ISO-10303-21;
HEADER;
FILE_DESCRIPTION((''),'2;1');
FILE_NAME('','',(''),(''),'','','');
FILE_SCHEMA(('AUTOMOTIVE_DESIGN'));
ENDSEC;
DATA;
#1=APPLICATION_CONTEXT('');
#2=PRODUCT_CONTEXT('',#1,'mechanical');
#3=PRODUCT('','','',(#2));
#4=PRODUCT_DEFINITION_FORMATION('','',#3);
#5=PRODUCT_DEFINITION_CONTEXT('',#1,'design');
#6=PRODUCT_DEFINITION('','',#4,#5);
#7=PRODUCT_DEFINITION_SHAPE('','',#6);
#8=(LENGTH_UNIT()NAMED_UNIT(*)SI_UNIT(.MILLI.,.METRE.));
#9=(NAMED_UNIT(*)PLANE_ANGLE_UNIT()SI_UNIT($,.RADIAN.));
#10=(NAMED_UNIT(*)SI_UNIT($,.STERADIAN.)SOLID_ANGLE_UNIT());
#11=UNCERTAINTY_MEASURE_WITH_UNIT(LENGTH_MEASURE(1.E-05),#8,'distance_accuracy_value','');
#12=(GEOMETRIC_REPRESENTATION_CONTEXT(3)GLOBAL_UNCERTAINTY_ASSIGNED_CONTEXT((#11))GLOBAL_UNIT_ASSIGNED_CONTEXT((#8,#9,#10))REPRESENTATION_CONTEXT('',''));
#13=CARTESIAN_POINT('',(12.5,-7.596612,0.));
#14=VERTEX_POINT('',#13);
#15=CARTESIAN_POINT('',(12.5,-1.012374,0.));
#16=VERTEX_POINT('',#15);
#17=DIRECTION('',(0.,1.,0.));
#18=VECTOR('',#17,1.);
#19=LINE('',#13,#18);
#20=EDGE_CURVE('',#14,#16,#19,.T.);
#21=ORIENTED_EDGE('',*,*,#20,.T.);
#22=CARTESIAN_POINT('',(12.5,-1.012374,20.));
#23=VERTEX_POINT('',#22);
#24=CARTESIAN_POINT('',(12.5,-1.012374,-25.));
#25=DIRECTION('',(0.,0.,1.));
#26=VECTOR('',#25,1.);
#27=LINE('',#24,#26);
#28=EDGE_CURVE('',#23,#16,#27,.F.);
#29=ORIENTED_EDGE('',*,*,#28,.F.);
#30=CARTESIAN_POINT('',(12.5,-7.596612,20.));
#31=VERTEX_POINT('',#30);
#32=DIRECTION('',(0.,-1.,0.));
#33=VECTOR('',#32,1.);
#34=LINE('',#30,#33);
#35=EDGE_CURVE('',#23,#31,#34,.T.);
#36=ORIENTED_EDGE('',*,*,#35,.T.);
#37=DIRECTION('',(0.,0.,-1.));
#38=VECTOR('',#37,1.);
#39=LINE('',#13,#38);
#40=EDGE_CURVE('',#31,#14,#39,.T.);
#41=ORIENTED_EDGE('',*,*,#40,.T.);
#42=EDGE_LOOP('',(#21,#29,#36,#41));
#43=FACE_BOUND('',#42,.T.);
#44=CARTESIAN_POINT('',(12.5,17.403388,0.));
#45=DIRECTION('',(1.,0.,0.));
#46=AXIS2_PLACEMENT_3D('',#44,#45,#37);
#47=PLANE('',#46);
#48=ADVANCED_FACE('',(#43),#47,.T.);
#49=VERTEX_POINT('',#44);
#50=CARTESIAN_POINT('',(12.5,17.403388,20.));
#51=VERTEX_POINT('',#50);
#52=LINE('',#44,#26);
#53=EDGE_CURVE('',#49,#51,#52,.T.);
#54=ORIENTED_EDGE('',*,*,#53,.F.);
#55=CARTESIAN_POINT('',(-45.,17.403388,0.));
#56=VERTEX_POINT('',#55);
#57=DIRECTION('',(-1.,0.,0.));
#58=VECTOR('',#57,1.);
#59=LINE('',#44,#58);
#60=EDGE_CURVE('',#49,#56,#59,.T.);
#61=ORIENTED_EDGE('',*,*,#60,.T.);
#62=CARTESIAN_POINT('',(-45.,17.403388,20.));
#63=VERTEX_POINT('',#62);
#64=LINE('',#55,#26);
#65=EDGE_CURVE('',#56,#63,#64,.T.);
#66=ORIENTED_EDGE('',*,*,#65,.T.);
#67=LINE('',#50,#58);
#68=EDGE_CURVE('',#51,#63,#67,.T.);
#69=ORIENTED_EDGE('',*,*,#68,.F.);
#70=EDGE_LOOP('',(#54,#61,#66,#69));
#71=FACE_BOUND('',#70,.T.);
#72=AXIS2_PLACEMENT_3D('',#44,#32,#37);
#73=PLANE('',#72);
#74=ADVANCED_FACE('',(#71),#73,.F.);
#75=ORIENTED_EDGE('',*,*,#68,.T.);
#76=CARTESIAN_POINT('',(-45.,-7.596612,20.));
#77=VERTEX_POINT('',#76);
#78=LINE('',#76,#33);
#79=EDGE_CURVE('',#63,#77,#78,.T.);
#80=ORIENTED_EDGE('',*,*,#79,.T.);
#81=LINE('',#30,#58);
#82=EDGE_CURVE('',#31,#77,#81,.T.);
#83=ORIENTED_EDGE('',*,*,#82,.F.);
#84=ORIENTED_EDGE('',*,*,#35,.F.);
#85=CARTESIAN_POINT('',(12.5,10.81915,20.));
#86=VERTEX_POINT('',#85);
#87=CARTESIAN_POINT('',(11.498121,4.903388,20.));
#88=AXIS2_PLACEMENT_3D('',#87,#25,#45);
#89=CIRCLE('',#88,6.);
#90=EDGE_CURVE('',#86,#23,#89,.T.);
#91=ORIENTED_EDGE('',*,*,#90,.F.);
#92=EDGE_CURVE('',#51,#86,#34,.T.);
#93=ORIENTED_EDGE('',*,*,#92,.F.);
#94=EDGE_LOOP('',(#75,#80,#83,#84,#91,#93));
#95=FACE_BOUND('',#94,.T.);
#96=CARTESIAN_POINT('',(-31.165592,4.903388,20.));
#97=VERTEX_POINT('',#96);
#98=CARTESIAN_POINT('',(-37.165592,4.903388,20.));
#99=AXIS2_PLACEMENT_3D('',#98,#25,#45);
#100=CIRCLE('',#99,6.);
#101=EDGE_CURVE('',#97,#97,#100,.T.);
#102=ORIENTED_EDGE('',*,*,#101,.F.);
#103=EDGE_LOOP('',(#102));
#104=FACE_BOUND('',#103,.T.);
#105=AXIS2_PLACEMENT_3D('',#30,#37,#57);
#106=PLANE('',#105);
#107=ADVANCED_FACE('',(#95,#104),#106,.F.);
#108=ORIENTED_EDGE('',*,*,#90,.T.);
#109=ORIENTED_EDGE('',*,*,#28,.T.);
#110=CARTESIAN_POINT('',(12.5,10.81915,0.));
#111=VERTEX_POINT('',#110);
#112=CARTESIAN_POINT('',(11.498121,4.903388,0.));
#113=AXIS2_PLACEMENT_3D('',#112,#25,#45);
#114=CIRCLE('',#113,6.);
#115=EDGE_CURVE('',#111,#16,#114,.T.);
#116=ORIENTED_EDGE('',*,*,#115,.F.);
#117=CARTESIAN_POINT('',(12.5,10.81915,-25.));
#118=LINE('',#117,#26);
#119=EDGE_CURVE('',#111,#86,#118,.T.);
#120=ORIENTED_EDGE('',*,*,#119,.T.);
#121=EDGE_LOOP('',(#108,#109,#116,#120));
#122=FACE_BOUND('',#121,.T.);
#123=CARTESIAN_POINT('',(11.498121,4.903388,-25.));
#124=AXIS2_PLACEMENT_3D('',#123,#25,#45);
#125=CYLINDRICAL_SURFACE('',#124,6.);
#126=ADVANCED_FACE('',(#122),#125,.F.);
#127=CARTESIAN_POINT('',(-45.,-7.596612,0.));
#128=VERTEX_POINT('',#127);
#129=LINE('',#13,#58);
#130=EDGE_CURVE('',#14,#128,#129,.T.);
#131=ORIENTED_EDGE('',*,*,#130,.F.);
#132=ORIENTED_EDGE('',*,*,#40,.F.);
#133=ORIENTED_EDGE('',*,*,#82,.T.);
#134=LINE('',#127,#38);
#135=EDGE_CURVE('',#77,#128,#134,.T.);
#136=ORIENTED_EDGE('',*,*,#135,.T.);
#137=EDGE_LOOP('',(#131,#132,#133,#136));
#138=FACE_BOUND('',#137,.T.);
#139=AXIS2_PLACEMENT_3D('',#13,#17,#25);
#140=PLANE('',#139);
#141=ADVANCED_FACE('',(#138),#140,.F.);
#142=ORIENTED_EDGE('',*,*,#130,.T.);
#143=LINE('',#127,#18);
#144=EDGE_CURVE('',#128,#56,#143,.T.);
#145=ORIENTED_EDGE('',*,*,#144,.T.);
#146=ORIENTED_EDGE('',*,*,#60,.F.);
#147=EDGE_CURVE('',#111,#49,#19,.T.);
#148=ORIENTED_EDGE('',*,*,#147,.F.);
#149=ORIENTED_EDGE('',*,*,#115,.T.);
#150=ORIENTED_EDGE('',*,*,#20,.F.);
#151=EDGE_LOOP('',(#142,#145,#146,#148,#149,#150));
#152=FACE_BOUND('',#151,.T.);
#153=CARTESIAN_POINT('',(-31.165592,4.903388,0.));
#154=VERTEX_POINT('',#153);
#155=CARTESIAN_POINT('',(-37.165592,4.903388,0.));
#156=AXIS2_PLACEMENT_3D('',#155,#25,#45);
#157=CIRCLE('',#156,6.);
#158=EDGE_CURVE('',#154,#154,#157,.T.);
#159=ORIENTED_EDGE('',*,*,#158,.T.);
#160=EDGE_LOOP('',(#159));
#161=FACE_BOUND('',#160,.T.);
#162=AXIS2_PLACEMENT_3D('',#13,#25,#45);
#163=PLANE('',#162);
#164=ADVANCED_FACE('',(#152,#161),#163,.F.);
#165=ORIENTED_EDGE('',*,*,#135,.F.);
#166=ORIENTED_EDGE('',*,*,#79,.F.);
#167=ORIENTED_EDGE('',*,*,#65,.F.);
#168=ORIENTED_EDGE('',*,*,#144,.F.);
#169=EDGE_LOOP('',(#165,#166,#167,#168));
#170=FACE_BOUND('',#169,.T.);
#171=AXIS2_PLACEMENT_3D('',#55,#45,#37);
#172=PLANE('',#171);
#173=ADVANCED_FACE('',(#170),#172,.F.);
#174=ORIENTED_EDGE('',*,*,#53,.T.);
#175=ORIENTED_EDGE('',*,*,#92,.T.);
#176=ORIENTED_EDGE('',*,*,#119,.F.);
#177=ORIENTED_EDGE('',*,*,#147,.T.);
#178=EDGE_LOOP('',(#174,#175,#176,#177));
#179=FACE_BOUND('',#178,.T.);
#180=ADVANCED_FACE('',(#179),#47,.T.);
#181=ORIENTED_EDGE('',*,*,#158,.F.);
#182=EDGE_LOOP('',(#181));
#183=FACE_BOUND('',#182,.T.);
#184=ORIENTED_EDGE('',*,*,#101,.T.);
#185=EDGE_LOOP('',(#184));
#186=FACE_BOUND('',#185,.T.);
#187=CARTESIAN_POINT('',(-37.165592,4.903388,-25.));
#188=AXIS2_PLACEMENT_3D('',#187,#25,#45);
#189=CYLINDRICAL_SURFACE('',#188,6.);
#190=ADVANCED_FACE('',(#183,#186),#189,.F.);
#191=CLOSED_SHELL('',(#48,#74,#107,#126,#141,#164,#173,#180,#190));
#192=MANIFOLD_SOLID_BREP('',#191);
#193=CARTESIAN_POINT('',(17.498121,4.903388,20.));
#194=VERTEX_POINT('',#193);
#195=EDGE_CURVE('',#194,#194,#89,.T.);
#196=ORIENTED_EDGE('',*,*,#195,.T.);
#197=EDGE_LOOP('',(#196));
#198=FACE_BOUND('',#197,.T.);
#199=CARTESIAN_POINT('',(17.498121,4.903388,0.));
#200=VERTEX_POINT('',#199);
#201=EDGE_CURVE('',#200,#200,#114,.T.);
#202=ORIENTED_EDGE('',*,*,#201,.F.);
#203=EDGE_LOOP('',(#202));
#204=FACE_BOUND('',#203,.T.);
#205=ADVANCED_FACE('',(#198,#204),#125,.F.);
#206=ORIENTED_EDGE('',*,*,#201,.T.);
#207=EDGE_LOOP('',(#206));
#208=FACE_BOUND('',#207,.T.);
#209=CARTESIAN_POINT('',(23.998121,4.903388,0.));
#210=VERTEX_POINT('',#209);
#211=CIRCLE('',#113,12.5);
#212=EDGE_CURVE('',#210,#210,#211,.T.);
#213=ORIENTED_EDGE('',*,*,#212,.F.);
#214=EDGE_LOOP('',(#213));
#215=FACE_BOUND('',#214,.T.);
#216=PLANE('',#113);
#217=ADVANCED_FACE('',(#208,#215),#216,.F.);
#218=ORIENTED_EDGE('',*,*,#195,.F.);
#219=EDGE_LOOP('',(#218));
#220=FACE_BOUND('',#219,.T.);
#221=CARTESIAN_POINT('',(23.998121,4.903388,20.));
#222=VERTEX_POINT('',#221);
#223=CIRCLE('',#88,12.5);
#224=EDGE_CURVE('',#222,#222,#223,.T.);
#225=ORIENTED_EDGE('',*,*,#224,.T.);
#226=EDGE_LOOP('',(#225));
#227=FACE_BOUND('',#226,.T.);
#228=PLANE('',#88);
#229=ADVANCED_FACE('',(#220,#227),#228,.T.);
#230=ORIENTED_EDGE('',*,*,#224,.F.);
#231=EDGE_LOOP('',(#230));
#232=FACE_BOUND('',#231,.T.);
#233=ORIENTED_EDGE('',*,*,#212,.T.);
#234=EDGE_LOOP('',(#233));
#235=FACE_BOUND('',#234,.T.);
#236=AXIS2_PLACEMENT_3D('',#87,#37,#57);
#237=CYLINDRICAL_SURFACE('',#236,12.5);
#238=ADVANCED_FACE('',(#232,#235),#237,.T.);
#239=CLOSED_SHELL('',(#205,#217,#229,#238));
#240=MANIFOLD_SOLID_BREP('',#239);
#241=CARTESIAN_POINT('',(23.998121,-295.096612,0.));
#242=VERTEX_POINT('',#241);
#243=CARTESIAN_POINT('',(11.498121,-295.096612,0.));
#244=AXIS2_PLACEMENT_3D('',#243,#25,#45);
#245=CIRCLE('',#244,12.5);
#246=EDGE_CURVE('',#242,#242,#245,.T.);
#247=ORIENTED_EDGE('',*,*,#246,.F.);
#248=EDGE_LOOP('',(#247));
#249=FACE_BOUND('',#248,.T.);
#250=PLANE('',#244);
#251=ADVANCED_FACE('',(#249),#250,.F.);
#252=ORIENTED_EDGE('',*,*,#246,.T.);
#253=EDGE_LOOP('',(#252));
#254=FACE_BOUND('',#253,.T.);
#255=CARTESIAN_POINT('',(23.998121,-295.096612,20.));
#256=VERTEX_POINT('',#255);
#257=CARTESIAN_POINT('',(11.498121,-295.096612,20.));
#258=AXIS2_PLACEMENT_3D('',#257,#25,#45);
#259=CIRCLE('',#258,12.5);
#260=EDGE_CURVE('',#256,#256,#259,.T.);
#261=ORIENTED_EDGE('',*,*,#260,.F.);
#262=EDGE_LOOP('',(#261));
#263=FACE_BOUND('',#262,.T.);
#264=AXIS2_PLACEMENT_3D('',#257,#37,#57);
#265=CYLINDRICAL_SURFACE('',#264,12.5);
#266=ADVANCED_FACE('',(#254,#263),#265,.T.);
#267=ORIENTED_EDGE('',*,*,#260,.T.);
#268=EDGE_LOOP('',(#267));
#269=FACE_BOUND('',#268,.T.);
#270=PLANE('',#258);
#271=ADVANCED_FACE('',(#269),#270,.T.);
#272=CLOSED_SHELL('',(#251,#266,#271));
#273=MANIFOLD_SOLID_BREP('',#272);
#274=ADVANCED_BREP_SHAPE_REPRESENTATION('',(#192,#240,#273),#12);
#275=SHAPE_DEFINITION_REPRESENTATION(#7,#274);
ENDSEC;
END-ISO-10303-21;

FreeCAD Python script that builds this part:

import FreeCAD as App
import Part
import Sketcher
Q = App.Units.Quantity

doc = App.newDocument("Part")
body = doc.addObject("PartDesign::Body", "Body")

# Sketch on XY plane
sketch1 = doc.addObject("Sketcher::SketchObject", "Sketch")
body.addObject(sketch1)
sketch1.AttachmentSupport = (doc.XY_Plane, [""])
sketch1.MapMode = "FlatFace"
sketch1.addGeometry(Part.Circle(App.Vector(11, 5, 0), App.Vector(0, 0, 1), 12), False)
sketch1.addConstraint([
    Sketcher.Constraint("Diameter", 0, Q("25 mm")),
    Sketcher.Constraint("DistanceX", -1, 1, 0, 3, Q("11.498121 mm")),
    Sketcher.Constraint("DistanceY", -1, 1, 0, 3, Q("4.903388 mm")),
])
pad1 = doc.addObject("PartDesign::Pad", "Pad")
body.addObject(pad1)
pad1.Profile = sketch1
pad1.Length = 20
body2 = doc.addObject("PartDesign::Body", "Body001")

# Sketch on XY plane
sketch2 = doc.addObject("Sketcher::SketchObject", "Sketch001")
body2.addObject(sketch2)
sketch2.AttachmentSupport = (doc.getObject("XY_Plane001"), [""])
sketch2.MapMode = "FlatFace"
sketch2.addGeometry(Part.Circle(App.Vector(11, -295, 0), App.Vector(0, 0, 1), 12), False)
sketch2.addConstraint([
    Sketcher.Constraint("Diameter", 0, Q("25 mm")),
    Sketcher.Constraint("DistanceX", -1, 1, 0, 3, Q("11.498121 mm")),
    Sketcher.Constraint("DistanceY", 0, 3, -1, 1, Q("295.096612 mm")),
])
pad2 = doc.addObject("PartDesign::Pad", "Pad001")
body2.addObject(pad2)
pad2.Profile = sketch2
pad2.Length = 20
body3 = doc.addObject("PartDesign::Body", "Body002")

# Sketch on YZ plane
sketch3 = doc.addObject("Sketcher::SketchObject", "Sketch002")
body3.addObject(sketch3)
sketch3.AttachmentSupport = (doc.getObject("YZ_Plane002"), [""])
sketch3.MapMode = "FlatFace"
sketch3.addGeometry([
    Part.LineSegment(App.Vector(17, 20, 0), App.Vector(-8, 20, 0)),
    Part.LineSegment(App.Vector(-8, 20, 0), App.Vector(-8, 0, 0)),
    Part.LineSegment(App.Vector(-8, 0, 0), App.Vector(17, 0, 0)),
    Part.LineSegment(App.Vector(17, 0, 0), App.Vector(17, 20, 0)),
], False)
sketch3.addConstraint([
    Sketcher.Constraint("Coincident", 0, 2, 1, 1),
    Sketcher.Constraint("Coincident", 1, 2, 2, 1),
    Sketcher.Constraint("Coincident", 2, 2, 3, 1),
    Sketcher.Constraint("Coincident", 3, 2, 0, 1),
    Sketcher.Constraint("Horizontal", 0),
    Sketcher.Constraint("Vertical", 1),
    Sketcher.Constraint("Horizontal", 2),
    Sketcher.Constraint("Vertical", 3),
    Sketcher.Constraint("PointOnObject", 1, 2, -1),
    Sketcher.Constraint("DistanceX", 0, 2, 0, 1, Q("25 mm")),
    Sketcher.Constraint("DistanceY", 1, 2, 1, 1, Q("20 mm")),
    Sketcher.Constraint("DistanceX", 0, 2, -1, 1, Q("7.596612 mm")),
])
pad3 = doc.addObject("PartDesign::Pad", "Pad002")
body3.addObject(pad3)
pad3.Profile = sketch3
pad3.Type = "TwoLengths"
pad3.Length = 12.5
pad3.Length2 = 45
body4 = doc.addObject("PartDesign::Body", "Body003")
body4.AllowCompound = True

# Sketch on XY plane
sketch4 = doc.addObject("Sketcher::SketchObject", "Sketch003")
body4.addObject(sketch4)
sketch4.AttachmentSupport = (doc.getObject("XY_Plane003"), [""])
sketch4.MapMode = "FlatFace"
sketch4.AttachmentOffset = App.Placement(App.Vector(0, 0, 20), App.Rotation())
sketch4.addGeometry([
    Part.Circle(App.Vector(11, 5, 0), App.Vector(0, 0, 1), 6),
    Part.Circle(App.Vector(-37, 5, 0), App.Vector(0, 0, 1), 6),
], False)
sketch4.addConstraint([
    Sketcher.Constraint("Equal", 0, 1),
    Sketcher.Constraint("Horizontal", 0, 3, 1, 3),
    Sketcher.Constraint("Diameter", 0, Q("12 mm")),
    Sketcher.Constraint("DistanceX", -1, 1, 0, 3, Q("11.498121 mm")),
    Sketcher.Constraint("DistanceY", -1, 1, 0, 3, Q("4.903388 mm")),
    Sketcher.Constraint("DistanceX", 1, 3, -1, 1, Q("37.165592 mm")),
])
pad4 = doc.addObject("PartDesign::Pad", "Pad003")
body4.addObject(pad4)
pad4.Profile = sketch4
pad4.Length = 45
pad4.Reversed = True
doc.recompute()

body5 = doc.addObject("PartDesign::Body", "Body004")
body5.BaseFeature = body4
boolean = doc.addObject("PartDesign::Boolean", "Boolean")
body.addObject(boolean)
boolean.Type = "Cut"
boolean.addObjects([body5])
doc.recompute()

boolean2 = doc.addObject("PartDesign::Boolean", "Boolean001")
body3.addObject(boolean2)
boolean2.Type = "Cut"
boolean2.addObjects([body4])

doc.recompute()
